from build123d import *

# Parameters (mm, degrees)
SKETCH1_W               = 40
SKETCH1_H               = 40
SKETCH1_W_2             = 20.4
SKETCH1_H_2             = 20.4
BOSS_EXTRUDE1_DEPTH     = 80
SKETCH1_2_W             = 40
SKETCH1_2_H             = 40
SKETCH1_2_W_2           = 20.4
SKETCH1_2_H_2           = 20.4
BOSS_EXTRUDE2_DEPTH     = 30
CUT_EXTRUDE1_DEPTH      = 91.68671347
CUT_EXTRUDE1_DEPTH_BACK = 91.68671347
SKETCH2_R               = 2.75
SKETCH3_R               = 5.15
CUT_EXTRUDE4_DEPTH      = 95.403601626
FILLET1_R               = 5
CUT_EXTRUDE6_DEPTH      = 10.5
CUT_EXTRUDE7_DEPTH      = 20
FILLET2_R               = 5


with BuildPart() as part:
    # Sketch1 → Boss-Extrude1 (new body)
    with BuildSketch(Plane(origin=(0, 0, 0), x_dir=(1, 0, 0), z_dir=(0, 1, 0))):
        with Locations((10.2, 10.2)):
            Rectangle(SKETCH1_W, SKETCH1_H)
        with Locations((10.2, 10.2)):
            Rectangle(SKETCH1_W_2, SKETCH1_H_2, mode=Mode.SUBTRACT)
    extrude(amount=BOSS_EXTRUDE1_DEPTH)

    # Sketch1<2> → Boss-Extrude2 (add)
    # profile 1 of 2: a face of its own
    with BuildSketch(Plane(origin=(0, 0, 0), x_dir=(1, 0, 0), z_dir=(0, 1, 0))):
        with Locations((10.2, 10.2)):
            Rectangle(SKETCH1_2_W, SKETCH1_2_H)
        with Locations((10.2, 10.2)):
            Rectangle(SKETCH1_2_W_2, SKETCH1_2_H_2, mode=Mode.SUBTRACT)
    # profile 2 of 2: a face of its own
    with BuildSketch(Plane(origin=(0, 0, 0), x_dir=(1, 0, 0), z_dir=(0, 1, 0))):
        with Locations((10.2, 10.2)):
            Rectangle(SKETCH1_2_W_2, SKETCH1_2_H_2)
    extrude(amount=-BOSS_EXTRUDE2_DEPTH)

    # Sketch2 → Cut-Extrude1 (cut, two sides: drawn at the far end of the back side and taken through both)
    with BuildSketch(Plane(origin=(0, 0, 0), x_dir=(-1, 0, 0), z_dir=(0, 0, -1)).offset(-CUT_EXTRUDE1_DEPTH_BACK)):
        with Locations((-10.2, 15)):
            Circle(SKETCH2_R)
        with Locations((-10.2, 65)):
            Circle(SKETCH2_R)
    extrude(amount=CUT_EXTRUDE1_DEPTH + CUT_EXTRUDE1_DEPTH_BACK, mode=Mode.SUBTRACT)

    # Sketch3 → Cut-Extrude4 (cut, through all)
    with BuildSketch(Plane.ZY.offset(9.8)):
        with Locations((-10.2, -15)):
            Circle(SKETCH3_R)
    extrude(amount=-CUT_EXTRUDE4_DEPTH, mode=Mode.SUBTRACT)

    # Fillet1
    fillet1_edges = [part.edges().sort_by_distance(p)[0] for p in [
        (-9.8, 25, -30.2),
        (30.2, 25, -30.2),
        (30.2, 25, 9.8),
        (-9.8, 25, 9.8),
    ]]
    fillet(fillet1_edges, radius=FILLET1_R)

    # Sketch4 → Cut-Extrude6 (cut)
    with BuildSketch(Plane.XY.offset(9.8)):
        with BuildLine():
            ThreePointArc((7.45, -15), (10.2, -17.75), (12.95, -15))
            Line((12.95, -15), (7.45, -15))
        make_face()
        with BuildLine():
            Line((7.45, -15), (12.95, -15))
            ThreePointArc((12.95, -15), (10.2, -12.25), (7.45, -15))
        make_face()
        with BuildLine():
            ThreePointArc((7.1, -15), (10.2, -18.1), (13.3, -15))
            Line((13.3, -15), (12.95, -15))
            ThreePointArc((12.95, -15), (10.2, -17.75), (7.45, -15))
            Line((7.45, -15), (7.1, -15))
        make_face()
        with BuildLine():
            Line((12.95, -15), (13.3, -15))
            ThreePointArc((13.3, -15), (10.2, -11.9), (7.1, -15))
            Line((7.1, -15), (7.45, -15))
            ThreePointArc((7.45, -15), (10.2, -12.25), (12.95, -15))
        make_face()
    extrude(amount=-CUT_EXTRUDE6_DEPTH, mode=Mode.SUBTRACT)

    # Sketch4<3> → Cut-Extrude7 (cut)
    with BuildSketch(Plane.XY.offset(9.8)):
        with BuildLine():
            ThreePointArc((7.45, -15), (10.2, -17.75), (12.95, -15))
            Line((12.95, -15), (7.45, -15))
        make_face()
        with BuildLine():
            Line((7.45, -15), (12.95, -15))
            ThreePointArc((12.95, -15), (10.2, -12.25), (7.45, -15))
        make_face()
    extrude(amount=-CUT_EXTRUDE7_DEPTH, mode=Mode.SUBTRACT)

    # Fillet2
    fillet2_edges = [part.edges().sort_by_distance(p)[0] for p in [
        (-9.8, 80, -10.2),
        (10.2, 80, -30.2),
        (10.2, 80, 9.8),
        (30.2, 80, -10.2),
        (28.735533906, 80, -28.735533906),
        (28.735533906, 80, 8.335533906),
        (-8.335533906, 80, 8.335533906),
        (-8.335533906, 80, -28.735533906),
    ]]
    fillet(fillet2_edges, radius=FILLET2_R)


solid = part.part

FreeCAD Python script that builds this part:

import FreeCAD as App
import Part
import Sketcher

V = App.Vector
Q = App.Units.Quantity


def edges_at(feature, points):
    """Names of the edges that pass closest to the given points."""
    edges = feature.Shape.Edges
    near = lambda p: min(range(len(edges)), key=lambda i: edges[i].distToShape(Part.Vertex(*p))[0])
    return sorted({f"Edge{near(p) + 1}" for p in points})


def add_polygon(sketch, points):
    """Adds a closed chain of lines whose ends are joined by coincident constraints."""
    first, n = sketch.GeometryCount, len(points)
    for a, b in zip(points, points[1:] + points[:1]):
        sketch.addGeometry(Part.LineSegment(App.Vector(*a, 0), App.Vector(*b, 0)), False)
    for i in range(n):
        sketch.addConstraint(Sketcher.Constraint("Coincident", first + i, 2, first + (i + 1) % n, 1))

doc = App.newDocument("Part")
body = doc.addObject("PartDesign::Body", "Body")

# Sketch on XZ plane
sketch1 = body.newObject("Sketcher::SketchObject", "Sketch")
sketch1.AttachmentSupport = (doc.getObject("XZ_Plane"), [""])
sketch1.MapMode = "FlatFace"
add_polygon(sketch1, [(-10, -30), (-10, 10), (30, 10), (30, -30)])  # lines 0-3
add_polygon(sketch1, [(20, 0), (0, 0), (0, -20), (20, -20)])  # lines 4-7
sketch1.addConstraint([
    Sketcher.Constraint("Vertical", 0),
    Sketcher.Constraint("Horizontal", 1),
    Sketcher.Constraint("Vertical", 2),
    Sketcher.Constraint("Horizontal", 3),
    Sketcher.Constraint("Horizontal", 4),
    Sketcher.Constraint("Vertical", 5),
    Sketcher.Constraint("Horizontal", 6),
    Sketcher.Constraint("Vertical", 7),
    Sketcher.Constraint("Coincident", 4, 2, -1, 1),
    Sketcher.Constraint("Equal", 3, 0),
    Sketcher.Constraint("Equal", 6, 5),
    Sketcher.Constraint("DistanceX", 1, 1, 1, 2, Q("40 mm")),
    Sketcher.Constraint("DistanceX", 4, 2, 4, 1, Q("20.4 mm")),
    Sketcher.Constraint("DistanceX", 0, 2, -1, 1, Q("9.8 mm")),
    Sketcher.Constraint("DistanceY", -1, 1, 0, 2, Q("9.8 mm")),
])
pad1 = body.newObject("PartDesign::Pad", "Pad")
pad1.Profile = sketch1
pad1.Length = 80
pad1.Reversed = True

# Sketch on XZ plane
sketch2 = body.newObject("Sketcher::SketchObject", "Sketch001")
sketch2.AttachmentSupport = (doc.getObject("XZ_Plane"), [""])
sketch2.MapMode = "FlatFace"
add_polygon(sketch2, [(-10, -30), (-10, 10), (30, 10), (30, -30)])  # lines 0-3
sketch2.addConstraint([
    Sketcher.Constraint("Vertical", 0),
    Sketcher.Constraint("Horizontal", 1),
    Sketcher.Constraint("Vertical", 2),
    Sketcher.Constraint("Horizontal", 3),
    Sketcher.Constraint("Equal", 3, 0),
    Sketcher.Constraint("DistanceX", 1, 1, 1, 2, Q("40 mm")),
    Sketcher.Constraint("DistanceX", 0, 2, -1, 1, Q("9.8 mm")),
    Sketcher.Constraint("DistanceY", -1, 1, 0, 2, Q("9.8 mm")),
])
pad2 = body.newObject("PartDesign::Pad", "Pad001")
pad2.Profile = sketch2
pad2.Length = 30

# Sketch on XY plane
sketch3 = body.newObject("Sketcher::SketchObject", "Sketch002")
sketch3.AttachmentSupport = (doc.getObject("XY_Plane"), [""])
sketch3.MapMode = "FlatFace"
sketch3.addGeometry([
    Part.Circle(V(10.2, 15, 0), V(0, 0, 1), 2.8),
    Part.Circle(V(10.2, 65, 0), V(0, 0, 1), 2.8),
], False)
sketch3.addConstraint([
    Sketcher.Constraint("Equal", 0, 1),
    Sketcher.Constraint("Vertical", 0, 3, 1, 3),
    Sketcher.Constraint("Diameter", 0, Q("5.5 mm")),
    Sketcher.Constraint("DistanceY", -1, 1, 0, 3, Q("15 mm")),
    Sketcher.Constraint("DistanceY", -1, 1, 1, 3, Q("65 mm")),
    Sketcher.Constraint("DistanceX", -1, 1, 0, 3, Q("10.2 mm")),
])
pocket1 = body.newObject("PartDesign::Pocket", "Pocket")
pocket1.Profile = sketch3
pocket1.Type = "ThroughAll"
pocket1.Midplane = True

# Sketch on YZ plane
sketch4 = body.newObject("Sketcher::SketchObject", "Sketch003")
sketch4.AttachmentSupport = (doc.getObject("YZ_Plane"), [""])
sketch4.MapMode = "FlatFace"
sketch4.AttachmentOffset = App.Placement(V(0, 0, -9.8), App.Rotation())
sketch4.addGeometry(Part.Circle(V(-15, -10, 0), V(0, 0, 1), 5), False)
sketch4.addConstraint([
    Sketcher.Constraint("Diameter", 0, Q("10.3 mm")),
    Sketcher.Constraint("DistanceX", 0, 3, -1, 1, Q("15 mm")),
    Sketcher.Constraint("DistanceY", 0, 3, -1, 1, Q("10.2 mm")),
])
pocket2 = body.newObject("PartDesign::Pocket", "Pocket001")
pocket2.Profile = sketch4
pocket2.Type = "ThroughAll"
pocket2.Reversed = True
doc.recompute()

fillet = body.newObject("PartDesign::Fillet", "Fillet")
fillet.Base = (pocket2, edges_at(pocket2, [
    (-9.8, 25, -30.2),
    (30.2, 25, -30.2),
    (30.2, 25, 9.8),
    (-9.8, 25, 9.8),
]))
fillet.Radius = 5

# Sketch on XY plane
sketch5 = body.newObject("Sketcher::SketchObject", "Sketch004")
sketch5.AttachmentSupport = (doc.getObject("XY_Plane"), [""])
sketch5.MapMode = "FlatFace"
sketch5.AttachmentOffset = App.Placement(V(0, 0, 9.8), App.Rotation())
sketch5.addGeometry(Part.Circle(V(10.2, -15, 0), V(0, 0, 1), 3.1), False)
sketch5.addConstraint([
    Sketcher.Constraint("Diameter", 0, Q("6.2 mm")),
    Sketcher.Constraint("DistanceY", 0, 3, -1, 1, Q("15 mm")),
    Sketcher.Constraint("DistanceX", -1, 1, 0, 3, Q("10.2 mm")),
])
pocket3 = body.newObject("PartDesign::Pocket", "Pocket002")
pocket3.Profile = sketch5
pocket3.Length = 10.5

# Sketch on XY plane
sketch6 = body.newObject("Sketcher::SketchObject", "Sketch005")
sketch6.AttachmentSupport = (doc.getObject("XY_Plane"), [""])
sketch6.MapMode = "FlatFace"
sketch6.AttachmentOffset = App.Placement(V(0, 0, 9.8), App.Rotation())
sketch6.addGeometry(Part.Circle(V(10.2, -15, 0), V(0, 0, 1), 2.8), False)
sketch6.addConstraint([
    Sketcher.Constraint("Diameter", 0, Q("5.5 mm")),
    Sketcher.Constraint("DistanceY", 0, 3, -1, 1, Q("15 mm")),
    Sketcher.Constraint("DistanceX", -1, 1, 0, 3, Q("10.2 mm")),
])
pocket4 = body.newObject("PartDesign::Pocket", "Pocket003")
pocket4.Profile = sketch6
pocket4.Length = 20
doc.recompute()

fillet2 = body.newObject("PartDesign::Fillet", "Fillet001")
fillet2.Base = (pocket4, edges_at(pocket4, [
    (-9.8, 80, -10.2),
    (10.2, 80, -30.2),
    (10.2, 80, 9.8),
    (30.2, 80, -10.2),
    (28.736, 80, -28.736),
    (28.736, 80, 8.336),
    (-8.336, 80, 8.336),
    (-8.336, 80, -28.736),
]))
fillet2.Radius = 5

doc.recompute()
